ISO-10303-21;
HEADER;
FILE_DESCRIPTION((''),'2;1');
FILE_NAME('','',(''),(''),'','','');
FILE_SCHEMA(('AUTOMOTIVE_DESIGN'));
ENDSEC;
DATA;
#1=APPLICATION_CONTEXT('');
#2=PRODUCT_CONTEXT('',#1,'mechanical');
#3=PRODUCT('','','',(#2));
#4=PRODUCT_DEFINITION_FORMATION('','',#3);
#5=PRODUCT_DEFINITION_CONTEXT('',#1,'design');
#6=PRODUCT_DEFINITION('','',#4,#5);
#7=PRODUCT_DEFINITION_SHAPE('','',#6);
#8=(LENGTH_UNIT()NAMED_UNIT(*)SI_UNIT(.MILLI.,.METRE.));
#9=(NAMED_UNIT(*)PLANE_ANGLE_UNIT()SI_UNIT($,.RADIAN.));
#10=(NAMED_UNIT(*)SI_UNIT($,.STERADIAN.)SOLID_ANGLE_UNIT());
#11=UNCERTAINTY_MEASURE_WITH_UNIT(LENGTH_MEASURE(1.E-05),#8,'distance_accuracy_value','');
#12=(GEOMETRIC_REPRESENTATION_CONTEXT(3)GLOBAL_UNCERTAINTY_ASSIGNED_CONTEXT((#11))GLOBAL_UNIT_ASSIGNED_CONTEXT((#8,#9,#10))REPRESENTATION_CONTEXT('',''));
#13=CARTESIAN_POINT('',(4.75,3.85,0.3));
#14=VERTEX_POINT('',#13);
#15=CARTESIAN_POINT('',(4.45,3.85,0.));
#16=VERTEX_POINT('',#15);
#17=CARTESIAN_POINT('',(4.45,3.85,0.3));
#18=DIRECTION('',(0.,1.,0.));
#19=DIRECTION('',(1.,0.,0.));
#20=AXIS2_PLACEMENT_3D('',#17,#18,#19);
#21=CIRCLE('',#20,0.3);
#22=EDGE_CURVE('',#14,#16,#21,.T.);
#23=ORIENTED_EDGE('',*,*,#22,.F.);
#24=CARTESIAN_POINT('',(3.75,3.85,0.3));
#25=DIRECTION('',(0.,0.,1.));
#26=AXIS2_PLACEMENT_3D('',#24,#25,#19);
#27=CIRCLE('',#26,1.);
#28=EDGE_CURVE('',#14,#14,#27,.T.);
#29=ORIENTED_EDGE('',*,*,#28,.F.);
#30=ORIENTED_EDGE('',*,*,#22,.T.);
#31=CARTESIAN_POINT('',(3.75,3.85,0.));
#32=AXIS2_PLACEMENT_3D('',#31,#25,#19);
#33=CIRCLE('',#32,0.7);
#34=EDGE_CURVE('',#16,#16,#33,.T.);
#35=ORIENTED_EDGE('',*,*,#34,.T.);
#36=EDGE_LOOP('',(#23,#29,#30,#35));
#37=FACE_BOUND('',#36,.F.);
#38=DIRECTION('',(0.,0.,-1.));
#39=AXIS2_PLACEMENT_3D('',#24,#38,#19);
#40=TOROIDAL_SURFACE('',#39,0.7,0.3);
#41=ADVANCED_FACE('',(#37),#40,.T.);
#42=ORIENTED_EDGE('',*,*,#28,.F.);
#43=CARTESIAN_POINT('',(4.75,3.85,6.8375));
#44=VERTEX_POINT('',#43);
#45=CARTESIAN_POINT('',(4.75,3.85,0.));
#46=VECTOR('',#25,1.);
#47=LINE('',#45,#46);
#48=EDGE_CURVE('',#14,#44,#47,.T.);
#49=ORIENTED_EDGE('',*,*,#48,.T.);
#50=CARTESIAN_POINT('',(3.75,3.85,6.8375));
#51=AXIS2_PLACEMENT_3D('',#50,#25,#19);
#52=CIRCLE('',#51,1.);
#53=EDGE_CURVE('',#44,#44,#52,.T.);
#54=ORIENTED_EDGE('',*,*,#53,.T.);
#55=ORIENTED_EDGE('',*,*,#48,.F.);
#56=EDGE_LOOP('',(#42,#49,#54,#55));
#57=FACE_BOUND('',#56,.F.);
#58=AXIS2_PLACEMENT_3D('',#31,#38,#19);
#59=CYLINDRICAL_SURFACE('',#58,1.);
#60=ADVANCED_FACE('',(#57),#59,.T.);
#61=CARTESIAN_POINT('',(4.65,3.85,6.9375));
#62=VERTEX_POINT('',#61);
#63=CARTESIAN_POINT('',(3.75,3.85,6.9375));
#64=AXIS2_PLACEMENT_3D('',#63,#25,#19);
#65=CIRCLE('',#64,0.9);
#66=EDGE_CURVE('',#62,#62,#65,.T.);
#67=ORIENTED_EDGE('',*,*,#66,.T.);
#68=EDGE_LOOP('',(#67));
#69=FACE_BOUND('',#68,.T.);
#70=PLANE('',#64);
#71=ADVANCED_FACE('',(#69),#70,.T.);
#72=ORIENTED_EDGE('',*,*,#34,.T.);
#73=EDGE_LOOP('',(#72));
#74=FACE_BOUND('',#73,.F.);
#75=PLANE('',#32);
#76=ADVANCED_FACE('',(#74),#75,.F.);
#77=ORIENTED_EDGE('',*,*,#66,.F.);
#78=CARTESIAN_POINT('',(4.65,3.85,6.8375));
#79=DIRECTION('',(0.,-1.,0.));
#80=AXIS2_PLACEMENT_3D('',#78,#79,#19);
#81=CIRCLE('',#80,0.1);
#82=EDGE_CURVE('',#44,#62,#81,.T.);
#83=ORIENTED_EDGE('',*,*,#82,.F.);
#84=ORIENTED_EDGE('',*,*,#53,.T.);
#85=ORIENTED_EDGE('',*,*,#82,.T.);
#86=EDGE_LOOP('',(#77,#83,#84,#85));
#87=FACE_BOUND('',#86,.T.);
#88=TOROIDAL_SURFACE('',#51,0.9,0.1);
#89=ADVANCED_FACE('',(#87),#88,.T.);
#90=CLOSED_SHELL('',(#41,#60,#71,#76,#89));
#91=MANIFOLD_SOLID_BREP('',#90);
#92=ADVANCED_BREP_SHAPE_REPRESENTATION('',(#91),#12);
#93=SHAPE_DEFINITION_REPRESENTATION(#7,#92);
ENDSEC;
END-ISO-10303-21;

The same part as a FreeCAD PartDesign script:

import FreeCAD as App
import Part
import Sketcher

V = App.Vector
Q = App.Units.Quantity


def edges_at(feature, points):
    """Names of the edges that pass closest to the given points."""
    edges = feature.Shape.Edges
    near = lambda p: min(range(len(edges)), key=lambda i: edges[i].distToShape(Part.Vertex(*p))[0])
    return sorted({f"Edge{near(p) + 1}" for p in points})

doc = App.newDocument("Part")
params = doc.addObject("Spreadsheet::Sheet", "Params")
for row, (alias, value) in enumerate([
    ("sketch1_diameter", "2 mm"),
    ("pad1_length", "6.9375 mm"),
    ("fillet_radius", "0.1 mm"),
    ("fillet2_radius", "0.3 mm"),
], start=1):
    params.set(f"A{row}", alias)
    params.set(f"B{row}", "=" + value)
    params.setAlias(f"B{row}", alias)

body = doc.addObject("PartDesign::Body", "Body")

# Sketch on XY plane
sketch1 = body.newObject("Sketcher::SketchObject", "Sketch")
sketch1.AttachmentSupport = (doc.getObject("XY_Plane"), [""])
sketch1.MapMode = "FlatFace"
sketch1.addGeometry(Part.Circle(V(3.75, 3.85, 0), V(0, 0, 1), 1), False)
sketch1.addConstraint([
    Sketcher.Constraint("Diameter", 0, Q("2 mm")),
    Sketcher.Constraint("DistanceX", -1, 1, 0, 3, Q("3.75 mm")),
    Sketcher.Constraint("DistanceY", -1, 1, 0, 3, Q("3.85 mm")),
])
sketch1.setExpression("Constraints[0]", "Params.sketch1_diameter")
pad1 = body.newObject("PartDesign::Pad", "Pad")
pad1.Profile = sketch1
pad1.setExpression("Length", "Params.pad1_length")
doc.recompute()

fillet = body.newObject("PartDesign::Fillet", "Fillet")
fillet.Base = (pad1, edges_at(pad1, [(2.75, 3.85, 6.938)]))
fillet.setExpression("Radius", "Params.fillet_radius")
doc.recompute()

fillet2 = body.newObject("PartDesign::Fillet", "Fillet001")
fillet2.Base = (fillet, edges_at(fillet, [(2.75, 3.85, 0)]))
fillet2.setExpression("Radius", "Params.fillet2_radius")

doc.recompute()
